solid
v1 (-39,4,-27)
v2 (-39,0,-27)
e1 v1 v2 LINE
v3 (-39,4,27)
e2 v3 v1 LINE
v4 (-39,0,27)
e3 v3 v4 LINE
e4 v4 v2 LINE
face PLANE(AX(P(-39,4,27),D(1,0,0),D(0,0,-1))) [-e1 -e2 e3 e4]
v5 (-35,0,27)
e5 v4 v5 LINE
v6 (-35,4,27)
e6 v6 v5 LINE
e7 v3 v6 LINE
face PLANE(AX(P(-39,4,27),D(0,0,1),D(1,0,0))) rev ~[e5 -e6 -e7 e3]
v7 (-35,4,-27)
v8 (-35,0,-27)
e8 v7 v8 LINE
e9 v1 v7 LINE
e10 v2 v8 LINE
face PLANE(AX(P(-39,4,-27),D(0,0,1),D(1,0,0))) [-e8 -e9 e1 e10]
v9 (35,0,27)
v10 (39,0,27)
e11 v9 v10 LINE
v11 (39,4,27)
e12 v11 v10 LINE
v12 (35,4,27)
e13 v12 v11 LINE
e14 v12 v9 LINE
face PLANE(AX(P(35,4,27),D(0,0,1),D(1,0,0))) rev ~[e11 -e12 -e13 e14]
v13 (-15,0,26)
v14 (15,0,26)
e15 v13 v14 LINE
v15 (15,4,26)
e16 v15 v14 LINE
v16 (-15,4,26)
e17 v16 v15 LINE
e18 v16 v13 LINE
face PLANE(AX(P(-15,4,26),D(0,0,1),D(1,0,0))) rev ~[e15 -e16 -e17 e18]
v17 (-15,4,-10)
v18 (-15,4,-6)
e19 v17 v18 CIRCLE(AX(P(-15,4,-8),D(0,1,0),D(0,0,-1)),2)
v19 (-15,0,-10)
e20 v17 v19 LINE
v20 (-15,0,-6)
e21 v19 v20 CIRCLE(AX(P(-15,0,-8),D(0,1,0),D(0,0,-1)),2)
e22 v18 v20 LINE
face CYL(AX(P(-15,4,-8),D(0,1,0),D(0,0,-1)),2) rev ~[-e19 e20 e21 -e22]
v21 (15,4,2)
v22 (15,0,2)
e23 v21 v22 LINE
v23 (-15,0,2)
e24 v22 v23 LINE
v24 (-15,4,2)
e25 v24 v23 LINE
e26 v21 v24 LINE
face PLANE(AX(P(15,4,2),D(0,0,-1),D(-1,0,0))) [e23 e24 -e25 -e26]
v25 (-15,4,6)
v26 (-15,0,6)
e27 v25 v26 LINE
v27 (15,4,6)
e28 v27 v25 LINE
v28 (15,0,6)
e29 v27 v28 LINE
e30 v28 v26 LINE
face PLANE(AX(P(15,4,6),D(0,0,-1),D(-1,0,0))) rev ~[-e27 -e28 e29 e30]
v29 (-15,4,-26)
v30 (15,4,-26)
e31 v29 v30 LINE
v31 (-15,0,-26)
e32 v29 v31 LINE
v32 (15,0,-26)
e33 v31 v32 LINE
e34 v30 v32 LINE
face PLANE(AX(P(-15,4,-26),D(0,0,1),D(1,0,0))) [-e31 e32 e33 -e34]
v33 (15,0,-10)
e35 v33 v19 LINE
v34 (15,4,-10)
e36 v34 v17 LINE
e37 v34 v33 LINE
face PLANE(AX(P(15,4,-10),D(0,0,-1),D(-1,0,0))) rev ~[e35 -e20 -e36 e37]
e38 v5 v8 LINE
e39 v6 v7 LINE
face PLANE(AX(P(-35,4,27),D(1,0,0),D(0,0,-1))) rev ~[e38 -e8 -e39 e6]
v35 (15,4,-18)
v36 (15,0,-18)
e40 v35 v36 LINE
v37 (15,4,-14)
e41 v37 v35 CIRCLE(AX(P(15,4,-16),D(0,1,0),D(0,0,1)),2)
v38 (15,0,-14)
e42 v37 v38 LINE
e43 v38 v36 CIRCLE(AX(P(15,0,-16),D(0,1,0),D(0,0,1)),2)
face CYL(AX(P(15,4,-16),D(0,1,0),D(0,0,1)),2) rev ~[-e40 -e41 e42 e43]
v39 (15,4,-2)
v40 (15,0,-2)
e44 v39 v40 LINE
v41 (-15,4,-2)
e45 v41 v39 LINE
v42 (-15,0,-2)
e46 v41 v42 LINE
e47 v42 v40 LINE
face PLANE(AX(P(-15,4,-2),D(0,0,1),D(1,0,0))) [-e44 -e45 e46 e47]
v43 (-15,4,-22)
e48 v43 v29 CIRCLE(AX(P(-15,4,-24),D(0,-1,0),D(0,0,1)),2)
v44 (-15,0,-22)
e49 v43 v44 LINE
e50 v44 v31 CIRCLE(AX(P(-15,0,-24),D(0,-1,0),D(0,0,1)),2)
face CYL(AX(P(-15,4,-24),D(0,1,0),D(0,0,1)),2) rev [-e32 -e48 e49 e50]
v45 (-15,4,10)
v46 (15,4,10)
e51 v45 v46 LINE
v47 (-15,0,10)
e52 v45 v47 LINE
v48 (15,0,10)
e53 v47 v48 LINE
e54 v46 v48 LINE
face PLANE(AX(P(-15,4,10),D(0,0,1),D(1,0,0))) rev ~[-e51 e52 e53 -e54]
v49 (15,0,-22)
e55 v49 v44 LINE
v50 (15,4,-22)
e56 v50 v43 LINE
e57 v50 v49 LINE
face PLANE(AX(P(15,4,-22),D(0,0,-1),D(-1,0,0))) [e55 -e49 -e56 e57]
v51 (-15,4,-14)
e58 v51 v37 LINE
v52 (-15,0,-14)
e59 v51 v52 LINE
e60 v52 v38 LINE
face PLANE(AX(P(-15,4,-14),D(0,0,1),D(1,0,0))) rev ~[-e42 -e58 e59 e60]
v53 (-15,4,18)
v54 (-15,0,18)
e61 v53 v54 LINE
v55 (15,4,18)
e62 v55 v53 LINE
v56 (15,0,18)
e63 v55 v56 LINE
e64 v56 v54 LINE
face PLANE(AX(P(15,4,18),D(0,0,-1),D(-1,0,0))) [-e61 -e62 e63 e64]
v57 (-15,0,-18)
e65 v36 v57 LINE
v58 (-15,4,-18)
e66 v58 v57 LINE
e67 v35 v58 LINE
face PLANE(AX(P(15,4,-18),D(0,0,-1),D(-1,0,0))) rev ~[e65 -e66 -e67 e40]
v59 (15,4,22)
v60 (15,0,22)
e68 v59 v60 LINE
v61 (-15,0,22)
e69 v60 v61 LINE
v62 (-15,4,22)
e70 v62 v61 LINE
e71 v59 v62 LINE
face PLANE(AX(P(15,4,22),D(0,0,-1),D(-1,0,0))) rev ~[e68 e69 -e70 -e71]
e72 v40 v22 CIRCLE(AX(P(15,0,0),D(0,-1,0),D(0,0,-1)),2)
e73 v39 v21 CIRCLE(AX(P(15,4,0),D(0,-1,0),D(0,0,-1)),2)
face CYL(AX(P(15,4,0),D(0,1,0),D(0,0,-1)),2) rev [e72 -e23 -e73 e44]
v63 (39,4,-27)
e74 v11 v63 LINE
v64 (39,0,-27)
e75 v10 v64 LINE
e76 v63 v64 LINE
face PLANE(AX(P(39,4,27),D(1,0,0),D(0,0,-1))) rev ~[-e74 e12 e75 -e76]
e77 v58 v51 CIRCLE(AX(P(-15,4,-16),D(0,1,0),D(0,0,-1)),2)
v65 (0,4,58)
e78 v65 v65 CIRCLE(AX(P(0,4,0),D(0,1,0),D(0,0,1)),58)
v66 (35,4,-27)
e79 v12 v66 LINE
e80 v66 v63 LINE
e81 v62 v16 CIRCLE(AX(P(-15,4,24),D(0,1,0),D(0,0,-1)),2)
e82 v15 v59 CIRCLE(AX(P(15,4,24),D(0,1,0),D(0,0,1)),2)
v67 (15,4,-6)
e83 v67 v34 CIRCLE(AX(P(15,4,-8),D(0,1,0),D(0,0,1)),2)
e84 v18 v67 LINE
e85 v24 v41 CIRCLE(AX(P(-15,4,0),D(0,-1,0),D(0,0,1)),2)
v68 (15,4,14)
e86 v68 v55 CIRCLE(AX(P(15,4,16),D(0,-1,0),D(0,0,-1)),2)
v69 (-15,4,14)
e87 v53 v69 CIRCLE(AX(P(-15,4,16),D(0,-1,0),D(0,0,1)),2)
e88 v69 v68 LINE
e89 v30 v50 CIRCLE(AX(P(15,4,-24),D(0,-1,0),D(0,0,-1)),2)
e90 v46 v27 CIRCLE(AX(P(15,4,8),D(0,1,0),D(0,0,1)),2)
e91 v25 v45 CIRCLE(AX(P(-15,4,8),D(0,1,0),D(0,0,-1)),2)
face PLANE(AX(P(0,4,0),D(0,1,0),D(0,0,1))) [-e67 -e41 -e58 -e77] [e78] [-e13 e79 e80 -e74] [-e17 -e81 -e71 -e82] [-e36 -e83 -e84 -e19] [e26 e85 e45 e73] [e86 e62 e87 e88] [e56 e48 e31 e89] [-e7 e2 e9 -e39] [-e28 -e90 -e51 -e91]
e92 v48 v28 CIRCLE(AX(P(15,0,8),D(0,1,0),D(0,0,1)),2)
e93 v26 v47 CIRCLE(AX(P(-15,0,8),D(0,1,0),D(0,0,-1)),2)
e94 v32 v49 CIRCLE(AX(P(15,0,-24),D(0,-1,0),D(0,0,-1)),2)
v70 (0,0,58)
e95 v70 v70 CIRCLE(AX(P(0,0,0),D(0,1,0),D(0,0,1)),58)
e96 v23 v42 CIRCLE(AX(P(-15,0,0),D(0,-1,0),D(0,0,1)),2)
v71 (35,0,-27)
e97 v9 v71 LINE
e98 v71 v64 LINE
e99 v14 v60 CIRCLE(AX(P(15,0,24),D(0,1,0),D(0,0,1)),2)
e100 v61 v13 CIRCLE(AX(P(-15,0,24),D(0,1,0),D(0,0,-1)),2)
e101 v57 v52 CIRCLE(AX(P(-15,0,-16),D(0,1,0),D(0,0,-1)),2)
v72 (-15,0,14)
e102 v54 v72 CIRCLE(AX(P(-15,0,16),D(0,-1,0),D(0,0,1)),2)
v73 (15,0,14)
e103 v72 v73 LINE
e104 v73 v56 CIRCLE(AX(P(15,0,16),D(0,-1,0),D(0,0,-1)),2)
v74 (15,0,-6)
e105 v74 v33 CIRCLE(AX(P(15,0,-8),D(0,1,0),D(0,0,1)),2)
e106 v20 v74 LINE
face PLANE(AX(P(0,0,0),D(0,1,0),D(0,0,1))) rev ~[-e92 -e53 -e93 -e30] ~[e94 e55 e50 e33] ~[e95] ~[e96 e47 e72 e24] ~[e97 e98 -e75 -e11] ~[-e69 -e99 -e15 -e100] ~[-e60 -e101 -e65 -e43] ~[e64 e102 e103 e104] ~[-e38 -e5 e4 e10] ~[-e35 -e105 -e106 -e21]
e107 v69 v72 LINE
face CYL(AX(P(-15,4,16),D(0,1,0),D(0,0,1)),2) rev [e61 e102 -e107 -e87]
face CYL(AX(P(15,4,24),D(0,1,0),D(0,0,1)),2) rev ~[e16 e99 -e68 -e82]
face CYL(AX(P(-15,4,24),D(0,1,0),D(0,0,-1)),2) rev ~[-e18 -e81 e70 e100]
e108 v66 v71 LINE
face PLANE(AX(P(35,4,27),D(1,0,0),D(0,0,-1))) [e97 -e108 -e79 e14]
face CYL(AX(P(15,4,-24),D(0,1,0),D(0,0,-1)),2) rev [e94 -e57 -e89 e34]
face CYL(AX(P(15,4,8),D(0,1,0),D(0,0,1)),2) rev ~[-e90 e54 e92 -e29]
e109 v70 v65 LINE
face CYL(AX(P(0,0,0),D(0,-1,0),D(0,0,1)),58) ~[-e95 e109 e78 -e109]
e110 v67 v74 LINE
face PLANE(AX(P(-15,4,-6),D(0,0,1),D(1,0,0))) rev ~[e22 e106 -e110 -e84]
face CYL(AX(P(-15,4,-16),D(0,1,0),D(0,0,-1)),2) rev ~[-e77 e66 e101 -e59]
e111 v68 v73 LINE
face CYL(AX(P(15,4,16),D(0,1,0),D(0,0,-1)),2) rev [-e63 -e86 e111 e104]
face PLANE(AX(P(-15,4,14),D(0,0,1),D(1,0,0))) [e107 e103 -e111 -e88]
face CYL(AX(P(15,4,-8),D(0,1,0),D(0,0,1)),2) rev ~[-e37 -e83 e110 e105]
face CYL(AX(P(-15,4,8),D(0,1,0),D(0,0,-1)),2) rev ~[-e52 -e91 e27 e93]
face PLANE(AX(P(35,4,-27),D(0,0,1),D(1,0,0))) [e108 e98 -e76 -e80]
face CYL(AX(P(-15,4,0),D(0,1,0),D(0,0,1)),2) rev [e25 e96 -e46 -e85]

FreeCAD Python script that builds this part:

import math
import FreeCAD as App
import Part
import Sketcher

V = App.Vector

doc = App.newDocument("Part")
body = doc.addObject("PartDesign::Body", "Body")

# Sketch on XZ plane
sketch1 = body.newObject("Sketcher::SketchObject", "Sketch")
sketch1.AttachmentSupport = (doc.getObject("XZ_Plane"), [""])
sketch1.MapMode = "FlatFace"
sketch1.addGeometry(Part.Circle(V(0, 0, 0), V(0, 0, 1), 58), False)
sketch1.addConstraint(Sketcher.Constraint("Coincident", 0, 3, -1, 1))
sketch1.addConstraint(Sketcher.Constraint("Diameter", 0, 116.0))
pad1 = body.newObject("PartDesign::Pad", "Pad")
pad1.Profile = sketch1
pad1.Length = 4
pad1.Reversed = True

# Sketch on XZ plane
sketch2 = body.newObject("Sketcher::SketchObject", "Sketch001")
sketch2.AttachmentSupport = (doc.getObject("XZ_Plane"), [""])
sketch2.MapMode = "FlatFace"
sketch2.AttachmentOffset = App.Placement(V(0, 0, -4), App.Rotation())
sketch2.addGeometry(Part.LineSegment(V(35, -27, 0), V(35, 27, 0)), False)
sketch2.addGeometry(Part.LineSegment(V(35, 27, 0), V(39, 27, 0)), False)
sketch2.addGeometry(Part.LineSegment(V(39, 27, 0), V(39, -27, 0)), False)
sketch2.addGeometry(Part.LineSegment(V(39, -27, 0), V(35, -27, 0)), False)
sketch2.addGeometry(Part.LineSegment(V(-39, -27, 0), V(-39, 27, 0)), False)
sketch2.addGeometry(Part.LineSegment(V(-39, 27, 0), V(-35, 27, 0)), False)
sketch2.addGeometry(Part.LineSegment(V(-35, 27, 0), V(-35, -27, 0)), False)
sketch2.addGeometry(Part.LineSegment(V(-35, -27, 0), V(-39, -27, 0)), False)
sketch2.addConstraint(Sketcher.Constraint("Coincident", 0, 2, 1, 1))
sketch2.addConstraint(Sketcher.Constraint("Coincident", 1, 2, 2, 1))
sketch2.addConstraint(Sketcher.Constraint("Coincident", 2, 2, 3, 1))
sketch2.addConstraint(Sketcher.Constraint("Coincident", 3, 2, 0, 1))
sketch2.addConstraint(Sketcher.Constraint("Coincident", 4, 2, 5, 1))
sketch2.addConstraint(Sketcher.Constraint("Coincident", 5, 2, 6, 1))
sketch2.addConstraint(Sketcher.Constraint("Coincident", 6, 2, 7, 1))
sketch2.addConstraint(Sketcher.Constraint("Coincident", 7, 2, 4, 1))
sketch2.addConstraint(Sketcher.Constraint("Vertical", 0))
sketch2.addConstraint(Sketcher.Constraint("Horizontal", 1))
sketch2.addConstraint(Sketcher.Constraint("Vertical", 2))
sketch2.addConstraint(Sketcher.Constraint("Horizontal", 3))
sketch2.addConstraint(Sketcher.Constraint("Vertical", 4))
sketch2.addConstraint(Sketcher.Constraint("Horizontal", 5))
sketch2.addConstraint(Sketcher.Constraint("Vertical", 6))
sketch2.addConstraint(Sketcher.Constraint("Horizontal", 7))
sketch2.addConstraint(Sketcher.Constraint("Symmetric", 2, 2, 4, 2, -1, 1))
sketch2.addConstraint(Sketcher.Constraint("Symmetric", 0, 2, 6, 2, -1, 1))
sketch2.addConstraint(Sketcher.Constraint("Horizontal", 1, 2, 4, 2))
sketch2.addConstraint(Sketcher.Constraint("DistanceX", 1, 1, 1, 2, 4.0))
sketch2.addConstraint(Sketcher.Constraint("DistanceY", 0, 1, 0, 2, 54.0))
sketch2.addConstraint(Sketcher.Constraint("DistanceX", -1, 1, 0, 2, 35.0))
pocket1 = body.newObject("PartDesign::Pocket", "Pocket")
pocket1.Profile = sketch2
pocket1.Type = "ThroughAll"
pocket1.Reversed = True

# Sketch on XZ plane
sketch3 = body.newObject("Sketcher::SketchObject", "Sketch002")
sketch3.AttachmentSupport = (doc.getObject("XZ_Plane"), [""])
sketch3.MapMode = "FlatFace"
sketch3.AttachmentOffset = App.Placement(V(0, 0, -4), App.Rotation())
sketch3.addGeometry(Part.LineSegment(V(-15, -6, 0), V(15, -6, 0)), False)
sketch3.addGeometry(Part.ArcOfCircle(Part.Circle(V(15, -8, 0), V(0, 0, 1), 2), math.radians(-90), math.radians(90)), False)
sketch3.addGeometry(Part.LineSegment(V(15, -10, 0), V(-15, -10, 0)), False)
sketch3.addGeometry(Part.ArcOfCircle(Part.Circle(V(-15, -8, 0), V(0, 0, 1), 2), math.radians(90), math.radians(270)), False)
sketch3.addGeometry(Part.LineSegment(V(-15, -14, 0), V(15, -14, 0)), False)
sketch3.addGeometry(Part.ArcOfCircle(Part.Circle(V(15, -16, 0), V(0, 0, 1), 2), math.radians(-90), math.radians(90)), False)
sketch3.addGeometry(Part.LineSegment(V(15, -18, 0), V(-15, -18, 0)), False)
sketch3.addGeometry(Part.ArcOfCircle(Part.Circle(V(-15, -16, 0), V(0, 0, 1), 2), math.radians(90), math.radians(270)), False)
sketch3.addGeometry(Part.LineSegment(V(-15, 10, 0), V(15, 10, 0)), False)
sketch3.addGeometry(Part.ArcOfCircle(Part.Circle(V(15, 8, 0), V(0, 0, 1), 2), math.radians(-90), math.radians(90)), False)
sketch3.addGeometry(Part.LineSegment(V(15, 6, 0), V(-15, 6, 0)), False)
sketch3.addGeometry(Part.ArcOfCircle(Part.Circle(V(-15, 8, 0), V(0, 0, 1), 2), math.radians(90), math.radians(270)), False)
sketch3.addGeometry(Part.LineSegment(V(-15, 26, 0), V(15, 26, 0)), False)
sketch3.addGeometry(Part.ArcOfCircle(Part.Circle(V(15, 24, 0), V(0, 0, 1), 2), math.radians(-90), math.radians(90)), False)
sketch3.addGeometry(Part.LineSegment(V(15, 22, 0), V(-15, 22, 0)), False)
sketch3.addGeometry(Part.ArcOfCircle(Part.Circle(V(-15, 24, 0), V(0, 0, 1), 2), math.radians(90), math.radians(270)), False)
sketch3.addGeometry(Part.LineSegment(V(15, -2, 0), V(-15, -2, 0)), False)
sketch3.addGeometry(Part.ArcOfCircle(Part.Circle(V(-15, 0, 0), V(0, 0, 1), 2), math.radians(90), math.radians(270)), False)
sketch3.addGeometry(Part.LineSegment(V(-15, 2, 0), V(15, 2, 0)), False)
sketch3.addGeometry(Part.ArcOfCircle(Part.Circle(V(15, 0, 0), V(0, 0, 1), 2), math.radians(-90), math.radians(90)), False)
sketch3.addGeometry(Part.LineSegment(V(15, -26, 0), V(-15, -26, 0)), False)
sketch3.addGeometry(Part.ArcOfCircle(Part.Circle(V(-15, -24, 0), V(0, 0, 1), 2), math.radians(90), math.radians(270)), False)
sketch3.addGeometry(Part.LineSegment(V(-15, -22, 0), V(15, -22, 0)), False)
sketch3.addGeometry(Part.ArcOfCircle(Part.Circle(V(15, -24, 0), V(0, 0, 1), 2), math.radians(-90), math.radians(90)), False)
sketch3.addGeometry(Part.LineSegment(V(15, 14, 0), V(-15, 14, 0)), False)
sketch3.addGeometry(Part.ArcOfCircle(Part.Circle(V(-15, 16, 0), V(0, 0, 1), 2), math.radians(90), math.radians(270)), False)
sketch3.addGeometry(Part.LineSegment(V(-15, 18, 0), V(15, 18, 0)), False)
sketch3.addGeometry(Part.ArcOfCircle(Part.Circle(V(15, 16, 0), V(0, 0, 1), 2), math.radians(-90), math.radians(90)), False)
sketch3.addConstraint(Sketcher.Constraint("Tangent", 0, 2, 1, 2))
sketch3.addConstraint(Sketcher.Constraint("Tangent", 1, 1, 2, 1))
sketch3.addConstraint(Sketcher.Constraint("Tangent", 2, 2, 3, 2))
sketch3.addConstraint(Sketcher.Constraint("Tangent", 3, 1, 0, 1))
sketch3.addConstraint(Sketcher.Constraint("Tangent", 4, 2, 5, 2))
sketch3.addConstraint(Sketcher.Constraint("Tangent", 5, 1, 6, 1))
sketch3.addConstraint(Sketcher.Constraint("Tangent", 6, 2, 7, 2))
sketch3.addConstraint(Sketcher.Constraint("Tangent", 7, 1, 4, 1))
sketch3.addConstraint(Sketcher.Constraint("Tangent", 8, 2, 9, 2))
sketch3.addConstraint(Sketcher.Constraint("Tangent", 9, 1, 10, 1))
sketch3.addConstraint(Sketcher.Constraint("Tangent", 10, 2, 11, 2))
sketch3.addConstraint(Sketcher.Constraint("Tangent", 11, 1, 8, 1))
sketch3.addConstraint(Sketcher.Constraint("Tangent", 12, 2, 13, 2))
sketch3.addConstraint(Sketcher.Constraint("Tangent", 13, 1, 14, 1))
sketch3.addConstraint(Sketcher.Constraint("Tangent", 14, 2, 15, 2))
sketch3.addConstraint(Sketcher.Constraint("Tangent", 15, 1, 12, 1))
sketch3.addConstraint(Sketcher.Constraint("Tangent", 16, 2, 17, 2))
sketch3.addConstraint(Sketcher.Constraint("Tangent", 17, 1, 18, 1))
sketch3.addConstraint(Sketcher.Constraint("Tangent", 18, 2, 19, 2))
sketch3.addConstraint(Sketcher.Constraint("Tangent", 19, 1, 16, 1))
sketch3.addConstraint(Sketcher.Constraint("Tangent", 20, 2, 21, 2))
sketch3.addConstraint(Sketcher.Constraint("Tangent", 21, 1, 22, 1))
sketch3.addConstraint(Sketcher.Constraint("Tangent", 22, 2, 23, 2))
sketch3.addConstraint(Sketcher.Constraint("Tangent", 23, 1, 20, 1))
sketch3.addConstraint(Sketcher.Constraint("Tangent", 24, 2, 25, 2))
sketch3.addConstraint(Sketcher.Constraint("Tangent", 25, 1, 26, 1))
sketch3.addConstraint(Sketcher.Constraint("Tangent", 26, 2, 27, 2))
sketch3.addConstraint(Sketcher.Constraint("Tangent", 27, 1, 24, 1))
sketch3.addConstraint(Sketcher.Constraint("Horizontal", 0))
sketch3.addConstraint(Sketcher.Constraint("Horizontal", 2))
sketch3.addConstraint(Sketcher.Constraint("Horizontal", 4))
sketch3.addConstraint(Sketcher.Constraint("Horizontal", 6))
sketch3.addConstraint(Sketcher.Constraint("Horizontal", 8))
sketch3.addConstraint(Sketcher.Constraint("Horizontal", 10))
sketch3.addConstraint(Sketcher.Constraint("Horizontal", 12))
sketch3.addConstraint(Sketcher.Constraint("Horizontal", 14))
sketch3.addConstraint(Sketcher.Constraint("Horizontal", 16))
sketch3.addConstraint(Sketcher.Constraint("Horizontal", 18))
sketch3.addConstraint(Sketcher.Constraint("Horizontal", 20))
sketch3.addConstraint(Sketcher.Constraint("Horizontal", 22))
sketch3.addConstraint(Sketcher.Constraint("Horizontal", 24))
sketch3.addConstraint(Sketcher.Constraint("Horizontal", 26))
sketch3.addConstraint(Sketcher.Constraint("Equal", 3, 5))
sketch3.addConstraint(Sketcher.Constraint("Equal", 7, 9))
sketch3.addConstraint(Sketcher.Constraint("Equal", 11, 13))
sketch3.addConstraint(Sketcher.Constraint("Equal", 15, 17))
sketch3.addConstraint(Sketcher.Constraint("Equal", 19, 21))
sketch3.addConstraint(Sketcher.Constraint("Equal", 23, 25))
sketch3.addConstraint(Sketcher.Constraint("Symmetric", 3, 3, 9, 3, -1, 1))
sketch3.addConstraint(Sketcher.Constraint("Symmetric", 17, 3, 19, 3, -1, 1))
sketch3.addConstraint(Sketcher.Constraint("Symmetric", 13, 3, 21, 3, -1, 1))
sketch3.addConstraint(Sketcher.Constraint("Symmetric", 5, 3, 25, 3, -1, 1))
sketch3.addConstraint(Sketcher.Constraint("Vertical", 1, 3, 5, 3))
sketch3.addConstraint(Sketcher.Constraint("Vertical", 3, 3, 7, 3))
sketch3.addConstraint(Sketcher.Constraint("Vertical", 5, 3, 9, 3))
sketch3.addConstraint(Sketcher.Constraint("Vertical", 7, 3, 11, 3))
sketch3.addConstraint(Sketcher.Constraint("Vertical", 9, 3, 13, 3))
sketch3.addConstraint(Sketcher.Constraint("Vertical", 11, 3, 15, 3))
sketch3.addConstraint(Sketcher.Constraint("Vertical", 15, 3, 17, 3))
sketch3.addConstraint(Sketcher.Constraint("Vertical", 19, 3, 23, 3))
sketch3.addConstraint(Sketcher.Constraint("Vertical", 23, 3, 27, 3))
sketch3.addConstraint(Sketcher.Constraint("Radius", 1, 2.0))
sketch3.addConstraint(Sketcher.Constraint("DistanceX", 0, 1, 0, 2, 30.0))
sketch3.addConstraint(Sketcher.Constraint("DistanceY", 1, 3, -1, 1, 8.0))
sketch3.addConstraint(Sketcher.Constraint("DistanceY", 5, 3, -1, 1, 16.0))
sketch3.addConstraint(Sketcher.Constraint("DistanceY", -1, 1, 13, 3, 24.0))
pocket2 = body.newObject("PartDesign::Pocket", "Pocket001")
pocket2.Profile = sketch3
pocket2.Length = 4
pocket2.Reversed = True

doc.recompute()
